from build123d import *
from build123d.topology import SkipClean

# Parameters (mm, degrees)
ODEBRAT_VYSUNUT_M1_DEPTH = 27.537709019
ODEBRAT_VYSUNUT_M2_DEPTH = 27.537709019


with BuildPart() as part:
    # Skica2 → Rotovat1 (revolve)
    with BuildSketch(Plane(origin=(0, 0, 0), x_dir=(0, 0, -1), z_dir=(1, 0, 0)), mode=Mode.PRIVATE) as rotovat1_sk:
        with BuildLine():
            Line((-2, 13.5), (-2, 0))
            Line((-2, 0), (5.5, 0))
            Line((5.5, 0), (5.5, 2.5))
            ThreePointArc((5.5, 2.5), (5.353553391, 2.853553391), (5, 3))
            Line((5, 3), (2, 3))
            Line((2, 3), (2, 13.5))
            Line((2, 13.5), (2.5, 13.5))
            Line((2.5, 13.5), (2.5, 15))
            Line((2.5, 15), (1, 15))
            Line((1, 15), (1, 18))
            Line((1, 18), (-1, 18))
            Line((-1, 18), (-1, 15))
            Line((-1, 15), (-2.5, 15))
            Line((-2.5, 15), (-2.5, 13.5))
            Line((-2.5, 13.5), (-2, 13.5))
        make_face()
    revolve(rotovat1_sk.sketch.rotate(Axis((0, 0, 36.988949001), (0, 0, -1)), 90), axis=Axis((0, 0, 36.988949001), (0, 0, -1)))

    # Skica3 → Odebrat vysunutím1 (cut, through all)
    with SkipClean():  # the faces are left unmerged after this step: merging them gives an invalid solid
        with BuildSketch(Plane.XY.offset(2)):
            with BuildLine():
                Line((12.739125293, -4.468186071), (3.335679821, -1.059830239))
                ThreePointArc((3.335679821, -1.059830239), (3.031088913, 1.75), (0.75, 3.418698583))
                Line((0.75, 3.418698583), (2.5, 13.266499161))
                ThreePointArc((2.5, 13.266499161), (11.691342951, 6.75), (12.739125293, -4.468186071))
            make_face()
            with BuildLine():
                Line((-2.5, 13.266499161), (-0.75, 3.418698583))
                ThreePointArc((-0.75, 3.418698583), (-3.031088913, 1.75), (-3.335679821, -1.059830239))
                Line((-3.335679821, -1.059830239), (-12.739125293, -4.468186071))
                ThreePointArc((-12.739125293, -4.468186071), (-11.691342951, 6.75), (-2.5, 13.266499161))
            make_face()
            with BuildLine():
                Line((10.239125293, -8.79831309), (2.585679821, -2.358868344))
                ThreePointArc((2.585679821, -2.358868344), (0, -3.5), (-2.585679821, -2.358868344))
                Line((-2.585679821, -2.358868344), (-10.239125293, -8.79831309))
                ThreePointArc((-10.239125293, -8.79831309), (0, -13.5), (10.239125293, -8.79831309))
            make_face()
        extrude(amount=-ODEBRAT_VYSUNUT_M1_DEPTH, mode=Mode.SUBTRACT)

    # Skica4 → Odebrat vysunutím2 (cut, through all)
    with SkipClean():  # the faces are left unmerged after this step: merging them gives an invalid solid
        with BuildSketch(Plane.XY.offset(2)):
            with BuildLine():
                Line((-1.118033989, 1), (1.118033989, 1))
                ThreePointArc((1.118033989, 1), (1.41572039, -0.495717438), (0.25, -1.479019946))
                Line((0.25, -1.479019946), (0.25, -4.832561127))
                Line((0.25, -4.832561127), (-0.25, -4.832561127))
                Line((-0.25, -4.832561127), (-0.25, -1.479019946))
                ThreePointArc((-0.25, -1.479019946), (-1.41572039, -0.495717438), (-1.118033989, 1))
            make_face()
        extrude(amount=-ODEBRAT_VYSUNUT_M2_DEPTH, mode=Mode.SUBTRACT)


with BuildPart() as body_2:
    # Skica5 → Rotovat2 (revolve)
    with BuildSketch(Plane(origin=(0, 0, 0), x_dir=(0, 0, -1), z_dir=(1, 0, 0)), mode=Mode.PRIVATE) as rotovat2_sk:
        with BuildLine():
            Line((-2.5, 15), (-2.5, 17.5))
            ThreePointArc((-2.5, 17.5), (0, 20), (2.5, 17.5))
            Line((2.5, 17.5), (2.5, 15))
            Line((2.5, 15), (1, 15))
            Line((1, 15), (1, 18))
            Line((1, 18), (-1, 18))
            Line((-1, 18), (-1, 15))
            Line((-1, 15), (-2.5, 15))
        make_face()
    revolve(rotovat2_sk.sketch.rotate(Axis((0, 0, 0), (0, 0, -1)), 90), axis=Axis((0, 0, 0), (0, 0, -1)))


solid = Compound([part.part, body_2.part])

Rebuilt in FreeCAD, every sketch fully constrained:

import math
import FreeCAD as App
import Part
import Sketcher
Q = App.Units.Quantity

doc = App.newDocument("Part")
body = doc.addObject("PartDesign::Body", "Body")

# Sketch on YZ plane
sketch1 = body.newObject("Sketcher::SketchObject", "Sketch")
sketch1.AttachmentSupport = (doc.getObject("YZ_Plane"), [""])
sketch1.MapMode = "FlatFace"
sketch1.addGeometry(Part.LineSegment(App.Vector(13.5, 2, 0), App.Vector(0, 2, 0)), False)
sketch1.addGeometry(Part.LineSegment(App.Vector(0, 2, 0), App.Vector(0, -5.5, 0)), False)
sketch1.addGeometry(Part.LineSegment(App.Vector(0, -5.5, 0), App.Vector(2.5, -5.5, 0)), False)
sketch1.addGeometry(Part.ArcOfCircle(Part.Circle(App.Vector(2.5, -5, 0), App.Vector(0, 0, 1), 0.5), math.radians(-90), math.radians(0)), False)
sketch1.addGeometry(Part.LineSegment(App.Vector(3, -5, 0), App.Vector(3, -2, 0)), False)
sketch1.addGeometry(Part.LineSegment(App.Vector(3, -2, 0), App.Vector(13.5, -2, 0)), False)
sketch1.addGeometry(Part.LineSegment(App.Vector(13.5, -2, 0), App.Vector(13.5, -2.5, 0)), False)
sketch1.addGeometry(Part.LineSegment(App.Vector(13.5, -2.5, 0), App.Vector(15, -2.5, 0)), False)
sketch1.addGeometry(Part.LineSegment(App.Vector(15, -2.5, 0), App.Vector(15, -1, 0)), False)
sketch1.addGeometry(Part.LineSegment(App.Vector(15, -1, 0), App.Vector(18, -1, 0)), False)
sketch1.addGeometry(Part.LineSegment(App.Vector(18, -1, 0), App.Vector(18, 1, 0)), False)
sketch1.addGeometry(Part.LineSegment(App.Vector(18, 1, 0), App.Vector(15, 1, 0)), False)
sketch1.addGeometry(Part.LineSegment(App.Vector(15, 1, 0), App.Vector(15, 2.5, 0)), False)
sketch1.addGeometry(Part.LineSegment(App.Vector(15, 2.5, 0), App.Vector(13.5, 2.5, 0)), False)
sketch1.addGeometry(Part.LineSegment(App.Vector(13.5, 2.5, 0), App.Vector(13.5, 2, 0)), False)
sketch1.addConstraint(Sketcher.Constraint("Coincident", 0, 2, 1, 1))
sketch1.addConstraint(Sketcher.Constraint("Coincident", 1, 2, 2, 1))
sketch1.addConstraint(Sketcher.Constraint("Tangent", 2, 2, 3, 1))
sketch1.addConstraint(Sketcher.Constraint("Tangent", 3, 2, 4, 1))
sketch1.addConstraint(Sketcher.Constraint("Coincident", 4, 2, 5, 1))
sketch1.addConstraint(Sketcher.Constraint("Coincident", 5, 2, 6, 1))
sketch1.addConstraint(Sketcher.Constraint("Coincident", 6, 2, 7, 1))
sketch1.addConstraint(Sketcher.Constraint("Coincident", 7, 2, 8, 1))
sketch1.addConstraint(Sketcher.Constraint("Coincident", 8, 2, 9, 1))
sketch1.addConstraint(Sketcher.Constraint("Coincident", 9, 2, 10, 1))
sketch1.addConstraint(Sketcher.Constraint("Coincident", 10, 2, 11, 1))
sketch1.addConstraint(Sketcher.Constraint("Coincident", 11, 2, 12, 1))
sketch1.addConstraint(Sketcher.Constraint("Coincident", 12, 2, 13, 1))
sketch1.addConstraint(Sketcher.Constraint("Coincident", 13, 2, 14, 1))
sketch1.addConstraint(Sketcher.Constraint("Coincident", 14, 2, 0, 1))
sketch1.addConstraint(Sketcher.Constraint("Horizontal", 0))
sketch1.addConstraint(Sketcher.Constraint("Vertical", 1))
sketch1.addConstraint(Sketcher.Constraint("Horizontal", 2))
sketch1.addConstraint(Sketcher.Constraint("Vertical", 4))
sketch1.addConstraint(Sketcher.Constraint("Horizontal", 5))
sketch1.addConstraint(Sketcher.Constraint("Vertical", 6))
sketch1.addConstraint(Sketcher.Constraint("Horizontal", 7))
sketch1.addConstraint(Sketcher.Constraint("Vertical", 8))
sketch1.addConstraint(Sketcher.Constraint("Horizontal", 9))
sketch1.addConstraint(Sketcher.Constraint("Vertical", 10))
sketch1.addConstraint(Sketcher.Constraint("Horizontal", 11))
sketch1.addConstraint(Sketcher.Constraint("Vertical", 12))
sketch1.addConstraint(Sketcher.Constraint("Horizontal", 13))
sketch1.addConstraint(Sketcher.Constraint("Vertical", 14))
sketch1.addConstraint(Sketcher.Constraint("Symmetric", 8, 2, 11, 2, -1))
sketch1.addConstraint(Sketcher.Constraint("Symmetric", 6, 2, 13, 2, -1))
sketch1.addConstraint(Sketcher.Constraint("PointOnObject", 0, 2, -2))
sketch1.addConstraint(Sketcher.Constraint("Equal", 11, 4))
sketch1.addConstraint(Sketcher.Constraint("Equal", 13, 8))
sketch1.addConstraint(Sketcher.Constraint("Equal", 6, 14))
sketch1.addConstraint(Sketcher.Constraint("Radius", 3, Q("0.5 mm")))
sketch1.addConstraint(Sketcher.Constraint("DistanceX", 9, 1, 9, 2, Q("3 mm")))
sketch1.addConstraint(Sketcher.Constraint("DistanceY", 10, 1, 10, 2, Q("2 mm")))
sketch1.addConstraint(Sketcher.Constraint("DistanceX", 0, 2, 0, 1, Q("13.5 mm")))
sketch1.addConstraint(Sketcher.Constraint("DistanceX", 2, 1, 2, 2, Q("2.5 mm")))
sketch1.addConstraint(Sketcher.Constraint("DistanceX", 7, 1, 7, 2, Q("1.5 mm")))
sketch1.addConstraint(Sketcher.Constraint("DistanceY", 1, 2, 1, 1, Q("7.5 mm")))
revolution = body.newObject("PartDesign::Revolution", "Revolution")
revolution.Profile = sketch1
revolution.ReferenceAxis = (sketch1, ["V_Axis"])
revolution.Angle = 360

# Sketch on XY plane
sketch2 = body.newObject("Sketcher::SketchObject", "Sketch001")
sketch2.AttachmentSupport = (doc.getObject("XY_Plane"), [""])
sketch2.MapMode = "FlatFace"
sketch2.AttachmentOffset = App.Placement(App.Vector(0, 0, 2), App.Rotation())
sketch2.addGeometry(Part.LineSegment(App.Vector(3.3, -1.1, 0), App.Vector(12.7, -4.5, 0)), False)
sketch2.addGeometry(Part.ArcOfCircle(Part.Circle(App.Vector(0, 0, 0), App.Vector(0, 0, 1), 13.5), math.radians(-19), math.radians(79)), False)
sketch2.addGeometry(Part.LineSegment(App.Vector(2.5, 13.3, 0), App.Vector(0.8, 3.4, 0)), False)
sketch2.addGeometry(Part.ArcOfCircle(Part.Circle(App.Vector(0, 0, 0), App.Vector(0, 0, 1), 3.5), math.radians(-18), math.radians(78)), False)
sketch2.addGeometry(Part.LineSegment(App.Vector(-0.8, 3.4, 0), App.Vector(-2.5, 13.3, 0)), False)
sketch2.addGeometry(Part.ArcOfCircle(Part.Circle(App.Vector(0, 0, 0), App.Vector(0, 0, 1), 13.5), math.radians(101), math.radians(199)), False)
sketch2.addGeometry(Part.LineSegment(App.Vector(-12.7, -4.5, 0), App.Vector(-3.3, -1.1, 0)), False)
sketch2.addGeometry(Part.ArcOfCircle(Part.Circle(App.Vector(0, 0, 0), App.Vector(0, 0, 1), 3.5), math.radians(102), math.radians(198)), False)
sketch2.addGeometry(Part.LineSegment(App.Vector(10.2, -8.8, 0), App.Vector(2.6, -2.4, 0)), False)
sketch2.addGeometry(Part.ArcOfCircle(Part.Circle(App.Vector(0, 0, 0), App.Vector(0, 0, 1), 3.5), math.radians(-138), math.radians(-42)), False)
sketch2.addGeometry(Part.LineSegment(App.Vector(-2.6, -2.4, 0), App.Vector(-10.2, -8.8, 0)), False)
sketch2.addGeometry(Part.ArcOfCircle(Part.Circle(App.Vector(0, 0, 0), App.Vector(0, 0, 1), 13.5), math.radians(-139), math.radians(-41)), False)
sketch2.addConstraint(Sketcher.Constraint("Coincident", 0, 2, 1, 1))
sketch2.addConstraint(Sketcher.Constraint("Coincident", 1, 2, 2, 1))
sketch2.addConstraint(Sketcher.Constraint("Coincident", 2, 2, 3, 2))
sketch2.addConstraint(Sketcher.Constraint("Coincident", 3, 1, 0, 1))
sketch2.addConstraint(Sketcher.Constraint("Coincident", 4, 2, 5, 1))
sketch2.addConstraint(Sketcher.Constraint("Coincident", 5, 2, 6, 1))
sketch2.addConstraint(Sketcher.Constraint("Coincident", 6, 2, 7, 2))
sketch2.addConstraint(Sketcher.Constraint("Coincident", 7, 1, 4, 1))
sketch2.addConstraint(Sketcher.Constraint("Coincident", 8, 2, 9, 2))
sketch2.addConstraint(Sketcher.Constraint("Coincident", 9, 1, 10, 1))
sketch2.addConstraint(Sketcher.Constraint("Coincident", 10, 2, 11, 1))
sketch2.addConstraint(Sketcher.Constraint("Coincident", 11, 2, 8, 1))
sketch2.addConstraint(Sketcher.Constraint("Coincident", 1, 3, -1, 1))
sketch2.addConstraint(Sketcher.Constraint("Coincident", 3, 3, -1, 1))
sketch2.addConstraint(Sketcher.Constraint("Coincident", 5, 3, -1, 1))
sketch2.addConstraint(Sketcher.Constraint("Coincident", 7, 3, -1, 1))
sketch2.addConstraint(Sketcher.Constraint("Coincident", 9, 3, -1, 1))
sketch2.addConstraint(Sketcher.Constraint("Coincident", 11, 3, -1, 1))
sketch2.addConstraint(Sketcher.Constraint("Equal", 1, 5))
sketch2.addConstraint(Sketcher.Constraint("Equal", 3, 7))
sketch2.addConstraint(Sketcher.Constraint("Equal", 7, 9))
sketch2.addConstraint(Sketcher.Constraint("Equal", 5, 11))
sketch2.addConstraint(Sketcher.Constraint("Horizontal", 1, 2, 4, 2))
sketch2.addConstraint(Sketcher.Constraint("Horizontal", 0, 2, 5, 2))
sketch2.addConstraint(Sketcher.Constraint("Horizontal", 3, 1, 6, 2))
sketch2.addConstraint(Sketcher.Constraint("Horizontal", 2, 2, 7, 1))
sketch2.addConstraint(Sketcher.Constraint("Horizontal", 8, 2, 9, 1))
sketch2.addConstraint(Sketcher.Constraint("Horizontal", 10, 2, 11, 2))
sketch2.addConstraint(Sketcher.Constraint("Equal", 0, 2))
sketch2.addConstraint(Sketcher.Constraint("Equal", 6, 8))
sketch2.addConstraint(Sketcher.Constraint("Radius", 1, Q("13.5 mm")))
sketch2.addConstraint(Sketcher.Constraint("Radius", 3, Q("3.5 mm")))
sketch2.addConstraint(Sketcher.Constraint("DistanceX", 4, 2, 1, 2, Q("5 mm")))
sketch2.addConstraint(Sketcher.Constraint("DistanceX", 7, 1, 2, 2, Q("1.5 mm")))
sketch2.addConstraint(Sketcher.Constraint("DistanceX", 5, 2, 10, 2, Q("2.5 mm")))
sketch2.addConstraint(Sketcher.Constraint("DistanceX", 8, 2, 3, 1, Q("0.75 mm")))
pocket1 = body.newObject("PartDesign::Pocket", "Pocket")
pocket1.Profile = sketch2
pocket1.Type = "ThroughAll"

# Sketch on XY plane
sketch3 = body.newObject("Sketcher::SketchObject", "Sketch002")
sketch3.AttachmentSupport = (doc.getObject("XY_Plane"), [""])
sketch3.MapMode = "FlatFace"
sketch3.AttachmentOffset = App.Placement(App.Vector(0, 0, 2), App.Rotation())
sketch3.addGeometry(Part.LineSegment(App.Vector(1.1, 1, 0), App.Vector(-1.1, 1, 0)), False)
sketch3.addGeometry(Part.ArcOfCircle(Part.Circle(App.Vector(0, 0, 0), App.Vector(0, 0, 1), 1.5), math.radians(138), math.radians(260)), False)
sketch3.addGeometry(Part.LineSegment(App.Vector(-0.2, -1.5, 0), App.Vector(-0.2, -4.8, 0)), False)
sketch3.addGeometry(Part.LineSegment(App.Vector(-0.2, -4.8, 0), App.Vector(0.2, -4.8, 0)), False)
sketch3.addGeometry(Part.LineSegment(App.Vector(0.2, -4.8, 0), App.Vector(0.2, -1.5, 0)), False)
sketch3.addGeometry(Part.ArcOfCircle(Part.Circle(App.Vector(0, 0, 0), App.Vector(0, 0, 1), 1.5), math.radians(-80), math.radians(42)), False)
sketch3.addConstraint(Sketcher.Constraint("Coincident", 0, 2, 1, 1))
sketch3.addConstraint(Sketcher.Constraint("Coincident", 1, 2, 2, 1))
sketch3.addConstraint(Sketcher.Constraint("Coincident", 2, 2, 3, 1))
sketch3.addConstraint(Sketcher.Constraint("Coincident", 3, 2, 4, 1))
sketch3.addConstraint(Sketcher.Constraint("Coincident", 4, 2, 5, 1))
sketch3.addConstraint(Sketcher.Constraint("Coincident", 5, 2, 0, 1))
sketch3.addConstraint(Sketcher.Constraint("Horizontal", 0))
sketch3.addConstraint(Sketcher.Constraint("Vertical", 2))
sketch3.addConstraint(Sketcher.Constraint("Horizontal", 3))
sketch3.addConstraint(Sketcher.Constraint("Vertical", 4))
sketch3.addConstraint(Sketcher.Constraint("Coincident", 1, 3, -1, 1))
sketch3.addConstraint(Sketcher.Constraint("Coincident", 5, 3, -1, 1))
sketch3.addConstraint(Sketcher.Constraint("Equal", 1, 5))
sketch3.addConstraint(Sketcher.Constraint("Horizontal", 1, 2, 4, 2))
sketch3.addConstraint(Sketcher.Constraint("Radius", 1, Q("1.5 mm")))
sketch3.addConstraint(Sketcher.Constraint("DistanceX", 3, 1, 3, 2, Q("0.5 mm")))
sketch3.addConstraint(Sketcher.Constraint("DistanceY", -1, 1, 0, 2, Q("1 mm")))
sketch3.addConstraint(Sketcher.Constraint("DistanceY", 2, 2, 2, 1, Q("3.353541 mm")))
pocket2 = body.newObject("PartDesign::Pocket", "Pocket001")
pocket2.Profile = sketch3
pocket2.Type = "ThroughAll"
body2 = doc.addObject("PartDesign::Body", "Body001")

# Sketch on YZ plane
sketch4 = body2.newObject("Sketcher::SketchObject", "Sketch003")
sketch4.AttachmentSupport = (doc.getObject("YZ_Plane001"), [""])
sketch4.MapMode = "FlatFace"
sketch4.addGeometry(Part.LineSegment(App.Vector(17.5, 2.5, 0), App.Vector(15, 2.5, 0)), False)
sketch4.addGeometry(Part.LineSegment(App.Vector(15, 2.5, 0), App.Vector(15, 1, 0)), False)
sketch4.addGeometry(Part.LineSegment(App.Vector(15, 1, 0), App.Vector(18, 1, 0)), False)
sketch4.addGeometry(Part.LineSegment(App.Vector(18, 1, 0), App.Vector(18, -1, 0)), False)
sketch4.addGeometry(Part.LineSegment(App.Vector(18, -1, 0), App.Vector(15, -1, 0)), False)
sketch4.addGeometry(Part.LineSegment(App.Vector(15, -1, 0), App.Vector(15, -2.5, 0)), False)
sketch4.addGeometry(Part.LineSegment(App.Vector(15, -2.5, 0), App.Vector(17.5, -2.5, 0)), False)
sketch4.addGeometry(Part.ArcOfCircle(Part.Circle(App.Vector(17.5, 0, 0), App.Vector(0, 0, 1), 2.5), math.radians(-90), math.radians(90)), False)
sketch4.addConstraint(Sketcher.Constraint("Coincident", 0, 2, 1, 1))
sketch4.addConstraint(Sketcher.Constraint("Coincident", 1, 2, 2, 1))
sketch4.addConstraint(Sketcher.Constraint("Coincident", 2, 2, 3, 1))
sketch4.addConstraint(Sketcher.Constraint("Coincident", 3, 2, 4, 1))
sketch4.addConstraint(Sketcher.Constraint("Coincident", 4, 2, 5, 1))
sketch4.addConstraint(Sketcher.Constraint("Coincident", 5, 2, 6, 1))
sketch4.addConstraint(Sketcher.Constraint("Tangent", 6, 2, 7, 1))
sketch4.addConstraint(Sketcher.Constraint("Tangent", 7, 2, 0, 1))
sketch4.addConstraint(Sketcher.Constraint("Horizontal", 0))
sketch4.addConstraint(Sketcher.Constraint("Vertical", 1))
sketch4.addConstraint(Sketcher.Constraint("Horizontal", 2))
sketch4.addConstraint(Sketcher.Constraint("Vertical", 3))
sketch4.addConstraint(Sketcher.Constraint("Horizontal", 4))
sketch4.addConstraint(Sketcher.Constraint("Vertical", 5))
sketch4.addConstraint(Sketcher.Constraint("Horizontal", 6))
sketch4.addConstraint(Sketcher.Constraint("Symmetric", 1, 2, 4, 2, -1))
sketch4.addConstraint(Sketcher.Constraint("PointOnObject", 7, 3, -1))
sketch4.addConstraint(Sketcher.Constraint("Radius", 7, Q("2.5 mm")))
sketch4.addConstraint(Sketcher.Constraint("DistanceX", 2, 1, 2, 2, Q("3 mm")))
sketch4.addConstraint(Sketcher.Constraint("DistanceY", 3, 2, 3, 1, Q("2 mm")))
sketch4.addConstraint(Sketcher.Constraint("DistanceX", 0, 2, 0, 1, Q("2.5 mm")))
sketch4.addConstraint(Sketcher.Constraint("DistanceX", -1, 1, 0, 2, Q("15 mm")))
revolution2 = body2.newObject("PartDesign::Revolution", "Revolution001")
revolution2.Profile = sketch4
revolution2.ReferenceAxis = (sketch4, ["V_Axis"])
revolution2.Angle = 360

doc.recompute()
